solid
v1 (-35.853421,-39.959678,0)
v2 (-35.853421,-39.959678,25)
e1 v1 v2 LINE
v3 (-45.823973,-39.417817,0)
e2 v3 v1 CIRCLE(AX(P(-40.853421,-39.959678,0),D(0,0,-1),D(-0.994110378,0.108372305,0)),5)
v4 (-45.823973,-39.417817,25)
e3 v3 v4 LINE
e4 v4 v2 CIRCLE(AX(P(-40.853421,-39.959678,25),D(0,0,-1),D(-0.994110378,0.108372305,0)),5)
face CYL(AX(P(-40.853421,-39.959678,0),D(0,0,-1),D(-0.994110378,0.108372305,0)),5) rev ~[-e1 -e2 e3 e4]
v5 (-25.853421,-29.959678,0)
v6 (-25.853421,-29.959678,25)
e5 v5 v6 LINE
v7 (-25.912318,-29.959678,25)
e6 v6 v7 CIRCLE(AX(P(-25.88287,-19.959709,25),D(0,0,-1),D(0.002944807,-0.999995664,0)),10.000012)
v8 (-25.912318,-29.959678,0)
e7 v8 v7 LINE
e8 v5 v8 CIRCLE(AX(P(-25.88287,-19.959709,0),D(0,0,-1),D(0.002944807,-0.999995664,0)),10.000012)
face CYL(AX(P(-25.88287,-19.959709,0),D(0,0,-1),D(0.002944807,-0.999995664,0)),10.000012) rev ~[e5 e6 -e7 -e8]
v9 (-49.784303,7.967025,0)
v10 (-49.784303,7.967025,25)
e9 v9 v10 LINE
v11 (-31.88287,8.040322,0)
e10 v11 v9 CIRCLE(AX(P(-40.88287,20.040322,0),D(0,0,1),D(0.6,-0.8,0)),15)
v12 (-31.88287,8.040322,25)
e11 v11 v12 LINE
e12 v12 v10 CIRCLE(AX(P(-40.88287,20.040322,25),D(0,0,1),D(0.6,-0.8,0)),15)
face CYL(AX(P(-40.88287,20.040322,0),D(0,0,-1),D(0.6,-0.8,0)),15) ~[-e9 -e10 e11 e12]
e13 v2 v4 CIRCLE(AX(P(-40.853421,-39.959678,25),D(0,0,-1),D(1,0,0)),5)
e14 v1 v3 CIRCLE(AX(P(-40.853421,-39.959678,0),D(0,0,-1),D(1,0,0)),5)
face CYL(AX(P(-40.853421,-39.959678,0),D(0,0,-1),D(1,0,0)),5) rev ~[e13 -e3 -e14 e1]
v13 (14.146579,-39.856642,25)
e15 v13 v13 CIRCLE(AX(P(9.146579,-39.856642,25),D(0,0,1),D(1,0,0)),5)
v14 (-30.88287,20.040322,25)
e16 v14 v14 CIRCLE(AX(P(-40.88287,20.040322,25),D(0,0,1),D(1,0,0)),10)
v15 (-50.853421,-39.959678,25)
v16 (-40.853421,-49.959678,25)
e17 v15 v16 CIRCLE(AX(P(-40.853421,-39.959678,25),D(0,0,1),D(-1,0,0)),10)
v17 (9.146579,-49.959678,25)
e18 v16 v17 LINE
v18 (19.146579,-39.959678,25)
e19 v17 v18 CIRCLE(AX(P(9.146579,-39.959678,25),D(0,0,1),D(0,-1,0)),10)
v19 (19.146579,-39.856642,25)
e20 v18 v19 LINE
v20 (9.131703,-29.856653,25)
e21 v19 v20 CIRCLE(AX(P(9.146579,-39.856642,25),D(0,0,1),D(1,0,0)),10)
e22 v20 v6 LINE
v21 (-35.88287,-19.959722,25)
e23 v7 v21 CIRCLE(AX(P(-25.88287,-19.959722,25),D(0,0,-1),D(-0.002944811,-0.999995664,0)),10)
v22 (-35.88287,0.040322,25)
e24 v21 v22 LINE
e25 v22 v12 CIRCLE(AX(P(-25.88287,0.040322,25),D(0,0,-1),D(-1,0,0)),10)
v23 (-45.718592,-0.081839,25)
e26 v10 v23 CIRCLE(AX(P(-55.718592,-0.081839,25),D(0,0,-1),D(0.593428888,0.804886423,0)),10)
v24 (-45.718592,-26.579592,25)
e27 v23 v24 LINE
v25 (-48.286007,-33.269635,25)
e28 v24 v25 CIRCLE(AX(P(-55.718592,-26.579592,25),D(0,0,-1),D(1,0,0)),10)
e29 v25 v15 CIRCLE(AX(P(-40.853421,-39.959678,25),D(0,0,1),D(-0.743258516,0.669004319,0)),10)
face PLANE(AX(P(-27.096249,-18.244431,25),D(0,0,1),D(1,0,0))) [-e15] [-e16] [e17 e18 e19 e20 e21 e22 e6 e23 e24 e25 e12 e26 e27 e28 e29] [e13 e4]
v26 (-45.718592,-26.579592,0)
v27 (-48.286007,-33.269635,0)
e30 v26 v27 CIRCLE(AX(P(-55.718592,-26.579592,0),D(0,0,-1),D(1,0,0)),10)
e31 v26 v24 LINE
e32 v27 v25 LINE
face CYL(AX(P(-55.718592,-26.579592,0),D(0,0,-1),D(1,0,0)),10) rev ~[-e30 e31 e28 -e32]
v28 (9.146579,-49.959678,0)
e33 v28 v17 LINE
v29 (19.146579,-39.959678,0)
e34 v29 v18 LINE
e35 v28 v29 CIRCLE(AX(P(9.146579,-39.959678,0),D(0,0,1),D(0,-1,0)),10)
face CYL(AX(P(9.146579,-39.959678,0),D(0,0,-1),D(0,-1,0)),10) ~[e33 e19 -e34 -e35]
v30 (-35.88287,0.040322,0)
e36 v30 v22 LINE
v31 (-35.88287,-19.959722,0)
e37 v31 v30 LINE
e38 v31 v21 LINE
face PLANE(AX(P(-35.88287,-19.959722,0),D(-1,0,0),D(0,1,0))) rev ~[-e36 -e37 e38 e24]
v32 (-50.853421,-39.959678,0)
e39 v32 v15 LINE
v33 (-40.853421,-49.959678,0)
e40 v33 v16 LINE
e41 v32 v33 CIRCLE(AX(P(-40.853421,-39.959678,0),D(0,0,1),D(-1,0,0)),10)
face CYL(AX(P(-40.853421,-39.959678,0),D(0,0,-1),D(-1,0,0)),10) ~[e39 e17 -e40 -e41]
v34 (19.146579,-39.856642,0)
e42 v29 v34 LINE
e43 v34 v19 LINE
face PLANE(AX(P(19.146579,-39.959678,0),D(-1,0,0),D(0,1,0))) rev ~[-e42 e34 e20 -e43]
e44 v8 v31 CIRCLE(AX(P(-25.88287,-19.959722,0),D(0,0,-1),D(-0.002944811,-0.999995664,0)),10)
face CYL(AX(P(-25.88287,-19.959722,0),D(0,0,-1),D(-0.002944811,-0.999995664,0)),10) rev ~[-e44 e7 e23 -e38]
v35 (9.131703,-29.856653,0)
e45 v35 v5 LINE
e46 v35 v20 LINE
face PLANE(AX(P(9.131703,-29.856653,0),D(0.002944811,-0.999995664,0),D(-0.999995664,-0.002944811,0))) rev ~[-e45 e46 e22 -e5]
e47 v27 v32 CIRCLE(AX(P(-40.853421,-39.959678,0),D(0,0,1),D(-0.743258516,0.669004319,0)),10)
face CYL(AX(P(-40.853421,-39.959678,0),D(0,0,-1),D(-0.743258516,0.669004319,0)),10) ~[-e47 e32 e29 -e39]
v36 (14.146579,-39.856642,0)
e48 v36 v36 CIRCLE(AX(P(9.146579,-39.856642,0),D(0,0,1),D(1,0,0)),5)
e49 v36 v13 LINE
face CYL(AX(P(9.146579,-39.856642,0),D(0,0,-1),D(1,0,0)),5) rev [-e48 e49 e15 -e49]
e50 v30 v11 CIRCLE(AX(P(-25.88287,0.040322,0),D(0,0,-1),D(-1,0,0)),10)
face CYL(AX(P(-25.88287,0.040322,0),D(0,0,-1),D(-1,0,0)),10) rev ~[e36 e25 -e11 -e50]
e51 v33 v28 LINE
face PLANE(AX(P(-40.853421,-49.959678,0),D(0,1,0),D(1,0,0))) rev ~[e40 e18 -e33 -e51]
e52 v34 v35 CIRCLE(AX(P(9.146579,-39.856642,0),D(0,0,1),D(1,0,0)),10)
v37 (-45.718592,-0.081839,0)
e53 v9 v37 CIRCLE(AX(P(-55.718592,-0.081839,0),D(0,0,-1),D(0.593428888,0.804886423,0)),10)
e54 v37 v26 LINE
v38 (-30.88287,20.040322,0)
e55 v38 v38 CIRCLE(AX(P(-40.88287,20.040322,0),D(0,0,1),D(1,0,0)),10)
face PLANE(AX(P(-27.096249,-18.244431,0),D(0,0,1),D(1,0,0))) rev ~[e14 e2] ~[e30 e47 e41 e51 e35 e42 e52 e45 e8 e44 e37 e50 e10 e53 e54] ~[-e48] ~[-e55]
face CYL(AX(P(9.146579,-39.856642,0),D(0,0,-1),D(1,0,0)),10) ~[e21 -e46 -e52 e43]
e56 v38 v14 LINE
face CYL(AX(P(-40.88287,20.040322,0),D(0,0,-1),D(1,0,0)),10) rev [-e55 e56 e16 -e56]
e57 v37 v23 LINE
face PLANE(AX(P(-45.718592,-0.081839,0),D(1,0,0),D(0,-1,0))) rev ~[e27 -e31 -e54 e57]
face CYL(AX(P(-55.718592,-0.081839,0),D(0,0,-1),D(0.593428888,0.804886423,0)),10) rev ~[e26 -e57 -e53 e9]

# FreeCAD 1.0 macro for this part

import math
import FreeCAD as App
import Part
import Sketcher
from FreeCAD import Vector

doc = App.newDocument("Part")
body = doc.addObject("PartDesign::Body", "Body")

sketch1 = body.newObject("Sketcher::SketchObject", "Sketch")
sketch1.AttachmentSupport = (doc.getObject("XY_Plane"), [""])
sketch1.MapMode = "FlatFace"
sketch1.addGeometry([
    Part.ArcOfCircle(Part.Circle(Vector(-40.853421, -39.959678, 0), Vector(0, 0, 1), 10), math.radians(180), math.radians(270)),
    Part.LineSegment(Vector(-40.853421, -49.959678, 0), Vector(9.146579, -49.959678, 0)),
    Part.ArcOfCircle(Part.Circle(Vector(9.146579, -39.959678, 0), Vector(0, 0, 1), 10), math.radians(-90), math.radians(0)),
    Part.LineSegment(Vector(19.146579, -39.959678, 0), Vector(19.146579, -39.856642, 0)),
    Part.ArcOfCircle(Part.Circle(Vector(9.146579, -39.856642, 0), Vector(0, 0, 1), 10), math.radians(0), math.radians(90.085232)),
    Part.LineSegment(Vector(9.131703, -29.856653, 0), Vector(-25.853421, -29.959678, 0)),
    Part.ArcOfCircle(Part.Circle(Vector(-25.88287, -19.959709, 0), Vector(0, 0, 1), 10.000012), math.radians(-90.168725), math.radians(-89.831275)),
    Part.ArcOfCircle(Part.Circle(Vector(-25.88287, -19.959722, 0), Vector(0, 0, 1), 10), math.radians(180), math.radians(269.831275)),
    Part.LineSegment(Vector(-35.88287, -19.959722, 0), Vector(-35.88287, 0.040322, 0)),
    Part.ArcOfCircle(Part.Circle(Vector(-25.88287, 0.040322, 0), Vector(0, 0, 1), 10), math.radians(126.869898), math.radians(180)),
    Part.ArcOfCircle(Part.Circle(Vector(-40.88287, 20.040322, 0), Vector(0, 0, 1), 15), math.radians(-53.130102), math.radians(233.599288)),
    Part.ArcOfCircle(Part.Circle(Vector(-55.718592, -0.081839, 0), Vector(0, 0, 1), 10), math.radians(0), math.radians(53.599288)),
    Part.LineSegment(Vector(-45.718592, -0.081839, 0), Vector(-45.718592, -26.579592, 0)),
    Part.ArcOfCircle(Part.Circle(Vector(-55.718592, -26.579592, 0), Vector(0, 0, 1), 10), math.radians(-41.990264), math.radians(0)),
    Part.ArcOfCircle(Part.Circle(Vector(-40.853421, -39.959678, 0), Vector(0, 0, 1), 10), math.radians(138.009736), math.radians(180)),
    Part.ArcOfCircle(Part.Circle(Vector(-40.853421, -39.959678, 0), Vector(0, 0, 1), 5), math.radians(173.778505), math.radians(360)),
    Part.ArcOfCircle(Part.Circle(Vector(-40.853421, -39.959678, 0), Vector(0, 0, 1), 5), math.radians(0), math.radians(173.778505)),
    Part.Circle(Vector(9.146579, -39.856642, 0), Vector(0, 0, 1), 5),
    Part.Circle(Vector(-40.88287, 20.040322, 0), Vector(0, 0, 1), 10),
], False)
sketch1.addConstraint([
    Sketcher.Constraint("Tangent", 0, 2, 1, 1),
    Sketcher.Constraint("Tangent", 1, 2, 2, 1),
    Sketcher.Constraint("Tangent", 2, 2, 3, 1),
    Sketcher.Constraint("Tangent", 3, 2, 4, 1),
    Sketcher.Constraint("Coincident", 4, 2, 5, 1),
    Sketcher.Constraint("Tangent", 5, 2, 6, 2),
    Sketcher.Constraint("Tangent", 6, 1, 7, 2),
    Sketcher.Constraint("Tangent", 7, 1, 8, 1),
    Sketcher.Constraint("Tangent", 8, 2, 9, 2),
    Sketcher.Constraint("Tangent", 9, 1, 10, 1),
    Sketcher.Constraint("Tangent", 10, 2, 11, 2),
    Sketcher.Constraint("Tangent", 11, 1, 12, 1),
    Sketcher.Constraint("Tangent", 12, 2, 13, 2),
    Sketcher.Constraint("Tangent", 13, 1, 14, 1),
    Sketcher.Constraint("Tangent", 14, 2, 0, 1),
    Sketcher.Constraint("Tangent", 15, 1, 16, 2),
    Sketcher.Constraint("Coincident", 16, 1, 15, 2),
    Sketcher.Constraint("Horizontal", 1),
    Sketcher.Constraint("Vertical", 3),
    Sketcher.Constraint("Vertical", 8),
    Sketcher.Constraint("Vertical", 12),
    Sketcher.Constraint("Coincident", 15, 3, 0, 3),
    Sketcher.Constraint("Coincident", 17, 3, 4, 3),
    Sketcher.Constraint("Coincident", 18, 3, 10, 3),
    Sketcher.Constraint("Equal", 0, 2),
    Sketcher.Constraint("Equal", 2, 4),
    Sketcher.Constraint("Equal", 4, 7),
    Sketcher.Constraint("Equal", 7, 9),
    Sketcher.Constraint("Equal", 9, 11),
    Sketcher.Constraint("Equal", 11, 13),
    Sketcher.Constraint("Equal", 13, 14),
    Sketcher.Constraint("Equal", 16, 17),
    Sketcher.Constraint("Equal", 14, 18),
    Sketcher.Constraint("Horizontal", 5, 2, 6, 1),
    Sketcher.Constraint("Horizontal", 2, 2, 14, 2),
    Sketcher.Constraint("Horizontal", 14, 2, 16, 1),
    Sketcher.Constraint("Diameter", 17, 10.0),
    Sketcher.Constraint("Diameter", 18, 20.0),
    Sketcher.Constraint("Radius", 10, 15.0),
    Sketcher.Constraint("DistanceX", 1, 1, 1, 2, 50.0),
    Sketcher.Constraint("DistanceY", 0, 3, 9, 3, 40.0),
    Sketcher.Constraint("DistanceX", 10, 3, 9, 3, 15.0),
    Sketcher.Constraint("DistanceX", 0, 3, 5, 2, 15.0),
    Sketcher.Constraint("DistanceY", 0, 3, 5, 2, 10.0),
    Sketcher.Constraint("Radius", 6, 10.000012),
    Sketcher.Constraint("DistanceY", 3, 1, 3, 2, 0.103036),
    Sketcher.Constraint("DistanceY", 12, 2, 12, 1, 26.497753),
    Sketcher.Constraint("DistanceX", 0, 3, -1, 1, 40.853421),
    Sketcher.Constraint("DistanceY", 0, 3, -1, 1, 39.959678),
    Sketcher.Constraint("DistanceX", 15, 1, 0, 3, 4.970552),
    Sketcher.Constraint("Distance", 5, 34.985276),
])
pad1 = body.newObject("PartDesign::Pad", "Pad")
pad1.Profile = sketch1
pad1.Length = 25

doc.recompute()
